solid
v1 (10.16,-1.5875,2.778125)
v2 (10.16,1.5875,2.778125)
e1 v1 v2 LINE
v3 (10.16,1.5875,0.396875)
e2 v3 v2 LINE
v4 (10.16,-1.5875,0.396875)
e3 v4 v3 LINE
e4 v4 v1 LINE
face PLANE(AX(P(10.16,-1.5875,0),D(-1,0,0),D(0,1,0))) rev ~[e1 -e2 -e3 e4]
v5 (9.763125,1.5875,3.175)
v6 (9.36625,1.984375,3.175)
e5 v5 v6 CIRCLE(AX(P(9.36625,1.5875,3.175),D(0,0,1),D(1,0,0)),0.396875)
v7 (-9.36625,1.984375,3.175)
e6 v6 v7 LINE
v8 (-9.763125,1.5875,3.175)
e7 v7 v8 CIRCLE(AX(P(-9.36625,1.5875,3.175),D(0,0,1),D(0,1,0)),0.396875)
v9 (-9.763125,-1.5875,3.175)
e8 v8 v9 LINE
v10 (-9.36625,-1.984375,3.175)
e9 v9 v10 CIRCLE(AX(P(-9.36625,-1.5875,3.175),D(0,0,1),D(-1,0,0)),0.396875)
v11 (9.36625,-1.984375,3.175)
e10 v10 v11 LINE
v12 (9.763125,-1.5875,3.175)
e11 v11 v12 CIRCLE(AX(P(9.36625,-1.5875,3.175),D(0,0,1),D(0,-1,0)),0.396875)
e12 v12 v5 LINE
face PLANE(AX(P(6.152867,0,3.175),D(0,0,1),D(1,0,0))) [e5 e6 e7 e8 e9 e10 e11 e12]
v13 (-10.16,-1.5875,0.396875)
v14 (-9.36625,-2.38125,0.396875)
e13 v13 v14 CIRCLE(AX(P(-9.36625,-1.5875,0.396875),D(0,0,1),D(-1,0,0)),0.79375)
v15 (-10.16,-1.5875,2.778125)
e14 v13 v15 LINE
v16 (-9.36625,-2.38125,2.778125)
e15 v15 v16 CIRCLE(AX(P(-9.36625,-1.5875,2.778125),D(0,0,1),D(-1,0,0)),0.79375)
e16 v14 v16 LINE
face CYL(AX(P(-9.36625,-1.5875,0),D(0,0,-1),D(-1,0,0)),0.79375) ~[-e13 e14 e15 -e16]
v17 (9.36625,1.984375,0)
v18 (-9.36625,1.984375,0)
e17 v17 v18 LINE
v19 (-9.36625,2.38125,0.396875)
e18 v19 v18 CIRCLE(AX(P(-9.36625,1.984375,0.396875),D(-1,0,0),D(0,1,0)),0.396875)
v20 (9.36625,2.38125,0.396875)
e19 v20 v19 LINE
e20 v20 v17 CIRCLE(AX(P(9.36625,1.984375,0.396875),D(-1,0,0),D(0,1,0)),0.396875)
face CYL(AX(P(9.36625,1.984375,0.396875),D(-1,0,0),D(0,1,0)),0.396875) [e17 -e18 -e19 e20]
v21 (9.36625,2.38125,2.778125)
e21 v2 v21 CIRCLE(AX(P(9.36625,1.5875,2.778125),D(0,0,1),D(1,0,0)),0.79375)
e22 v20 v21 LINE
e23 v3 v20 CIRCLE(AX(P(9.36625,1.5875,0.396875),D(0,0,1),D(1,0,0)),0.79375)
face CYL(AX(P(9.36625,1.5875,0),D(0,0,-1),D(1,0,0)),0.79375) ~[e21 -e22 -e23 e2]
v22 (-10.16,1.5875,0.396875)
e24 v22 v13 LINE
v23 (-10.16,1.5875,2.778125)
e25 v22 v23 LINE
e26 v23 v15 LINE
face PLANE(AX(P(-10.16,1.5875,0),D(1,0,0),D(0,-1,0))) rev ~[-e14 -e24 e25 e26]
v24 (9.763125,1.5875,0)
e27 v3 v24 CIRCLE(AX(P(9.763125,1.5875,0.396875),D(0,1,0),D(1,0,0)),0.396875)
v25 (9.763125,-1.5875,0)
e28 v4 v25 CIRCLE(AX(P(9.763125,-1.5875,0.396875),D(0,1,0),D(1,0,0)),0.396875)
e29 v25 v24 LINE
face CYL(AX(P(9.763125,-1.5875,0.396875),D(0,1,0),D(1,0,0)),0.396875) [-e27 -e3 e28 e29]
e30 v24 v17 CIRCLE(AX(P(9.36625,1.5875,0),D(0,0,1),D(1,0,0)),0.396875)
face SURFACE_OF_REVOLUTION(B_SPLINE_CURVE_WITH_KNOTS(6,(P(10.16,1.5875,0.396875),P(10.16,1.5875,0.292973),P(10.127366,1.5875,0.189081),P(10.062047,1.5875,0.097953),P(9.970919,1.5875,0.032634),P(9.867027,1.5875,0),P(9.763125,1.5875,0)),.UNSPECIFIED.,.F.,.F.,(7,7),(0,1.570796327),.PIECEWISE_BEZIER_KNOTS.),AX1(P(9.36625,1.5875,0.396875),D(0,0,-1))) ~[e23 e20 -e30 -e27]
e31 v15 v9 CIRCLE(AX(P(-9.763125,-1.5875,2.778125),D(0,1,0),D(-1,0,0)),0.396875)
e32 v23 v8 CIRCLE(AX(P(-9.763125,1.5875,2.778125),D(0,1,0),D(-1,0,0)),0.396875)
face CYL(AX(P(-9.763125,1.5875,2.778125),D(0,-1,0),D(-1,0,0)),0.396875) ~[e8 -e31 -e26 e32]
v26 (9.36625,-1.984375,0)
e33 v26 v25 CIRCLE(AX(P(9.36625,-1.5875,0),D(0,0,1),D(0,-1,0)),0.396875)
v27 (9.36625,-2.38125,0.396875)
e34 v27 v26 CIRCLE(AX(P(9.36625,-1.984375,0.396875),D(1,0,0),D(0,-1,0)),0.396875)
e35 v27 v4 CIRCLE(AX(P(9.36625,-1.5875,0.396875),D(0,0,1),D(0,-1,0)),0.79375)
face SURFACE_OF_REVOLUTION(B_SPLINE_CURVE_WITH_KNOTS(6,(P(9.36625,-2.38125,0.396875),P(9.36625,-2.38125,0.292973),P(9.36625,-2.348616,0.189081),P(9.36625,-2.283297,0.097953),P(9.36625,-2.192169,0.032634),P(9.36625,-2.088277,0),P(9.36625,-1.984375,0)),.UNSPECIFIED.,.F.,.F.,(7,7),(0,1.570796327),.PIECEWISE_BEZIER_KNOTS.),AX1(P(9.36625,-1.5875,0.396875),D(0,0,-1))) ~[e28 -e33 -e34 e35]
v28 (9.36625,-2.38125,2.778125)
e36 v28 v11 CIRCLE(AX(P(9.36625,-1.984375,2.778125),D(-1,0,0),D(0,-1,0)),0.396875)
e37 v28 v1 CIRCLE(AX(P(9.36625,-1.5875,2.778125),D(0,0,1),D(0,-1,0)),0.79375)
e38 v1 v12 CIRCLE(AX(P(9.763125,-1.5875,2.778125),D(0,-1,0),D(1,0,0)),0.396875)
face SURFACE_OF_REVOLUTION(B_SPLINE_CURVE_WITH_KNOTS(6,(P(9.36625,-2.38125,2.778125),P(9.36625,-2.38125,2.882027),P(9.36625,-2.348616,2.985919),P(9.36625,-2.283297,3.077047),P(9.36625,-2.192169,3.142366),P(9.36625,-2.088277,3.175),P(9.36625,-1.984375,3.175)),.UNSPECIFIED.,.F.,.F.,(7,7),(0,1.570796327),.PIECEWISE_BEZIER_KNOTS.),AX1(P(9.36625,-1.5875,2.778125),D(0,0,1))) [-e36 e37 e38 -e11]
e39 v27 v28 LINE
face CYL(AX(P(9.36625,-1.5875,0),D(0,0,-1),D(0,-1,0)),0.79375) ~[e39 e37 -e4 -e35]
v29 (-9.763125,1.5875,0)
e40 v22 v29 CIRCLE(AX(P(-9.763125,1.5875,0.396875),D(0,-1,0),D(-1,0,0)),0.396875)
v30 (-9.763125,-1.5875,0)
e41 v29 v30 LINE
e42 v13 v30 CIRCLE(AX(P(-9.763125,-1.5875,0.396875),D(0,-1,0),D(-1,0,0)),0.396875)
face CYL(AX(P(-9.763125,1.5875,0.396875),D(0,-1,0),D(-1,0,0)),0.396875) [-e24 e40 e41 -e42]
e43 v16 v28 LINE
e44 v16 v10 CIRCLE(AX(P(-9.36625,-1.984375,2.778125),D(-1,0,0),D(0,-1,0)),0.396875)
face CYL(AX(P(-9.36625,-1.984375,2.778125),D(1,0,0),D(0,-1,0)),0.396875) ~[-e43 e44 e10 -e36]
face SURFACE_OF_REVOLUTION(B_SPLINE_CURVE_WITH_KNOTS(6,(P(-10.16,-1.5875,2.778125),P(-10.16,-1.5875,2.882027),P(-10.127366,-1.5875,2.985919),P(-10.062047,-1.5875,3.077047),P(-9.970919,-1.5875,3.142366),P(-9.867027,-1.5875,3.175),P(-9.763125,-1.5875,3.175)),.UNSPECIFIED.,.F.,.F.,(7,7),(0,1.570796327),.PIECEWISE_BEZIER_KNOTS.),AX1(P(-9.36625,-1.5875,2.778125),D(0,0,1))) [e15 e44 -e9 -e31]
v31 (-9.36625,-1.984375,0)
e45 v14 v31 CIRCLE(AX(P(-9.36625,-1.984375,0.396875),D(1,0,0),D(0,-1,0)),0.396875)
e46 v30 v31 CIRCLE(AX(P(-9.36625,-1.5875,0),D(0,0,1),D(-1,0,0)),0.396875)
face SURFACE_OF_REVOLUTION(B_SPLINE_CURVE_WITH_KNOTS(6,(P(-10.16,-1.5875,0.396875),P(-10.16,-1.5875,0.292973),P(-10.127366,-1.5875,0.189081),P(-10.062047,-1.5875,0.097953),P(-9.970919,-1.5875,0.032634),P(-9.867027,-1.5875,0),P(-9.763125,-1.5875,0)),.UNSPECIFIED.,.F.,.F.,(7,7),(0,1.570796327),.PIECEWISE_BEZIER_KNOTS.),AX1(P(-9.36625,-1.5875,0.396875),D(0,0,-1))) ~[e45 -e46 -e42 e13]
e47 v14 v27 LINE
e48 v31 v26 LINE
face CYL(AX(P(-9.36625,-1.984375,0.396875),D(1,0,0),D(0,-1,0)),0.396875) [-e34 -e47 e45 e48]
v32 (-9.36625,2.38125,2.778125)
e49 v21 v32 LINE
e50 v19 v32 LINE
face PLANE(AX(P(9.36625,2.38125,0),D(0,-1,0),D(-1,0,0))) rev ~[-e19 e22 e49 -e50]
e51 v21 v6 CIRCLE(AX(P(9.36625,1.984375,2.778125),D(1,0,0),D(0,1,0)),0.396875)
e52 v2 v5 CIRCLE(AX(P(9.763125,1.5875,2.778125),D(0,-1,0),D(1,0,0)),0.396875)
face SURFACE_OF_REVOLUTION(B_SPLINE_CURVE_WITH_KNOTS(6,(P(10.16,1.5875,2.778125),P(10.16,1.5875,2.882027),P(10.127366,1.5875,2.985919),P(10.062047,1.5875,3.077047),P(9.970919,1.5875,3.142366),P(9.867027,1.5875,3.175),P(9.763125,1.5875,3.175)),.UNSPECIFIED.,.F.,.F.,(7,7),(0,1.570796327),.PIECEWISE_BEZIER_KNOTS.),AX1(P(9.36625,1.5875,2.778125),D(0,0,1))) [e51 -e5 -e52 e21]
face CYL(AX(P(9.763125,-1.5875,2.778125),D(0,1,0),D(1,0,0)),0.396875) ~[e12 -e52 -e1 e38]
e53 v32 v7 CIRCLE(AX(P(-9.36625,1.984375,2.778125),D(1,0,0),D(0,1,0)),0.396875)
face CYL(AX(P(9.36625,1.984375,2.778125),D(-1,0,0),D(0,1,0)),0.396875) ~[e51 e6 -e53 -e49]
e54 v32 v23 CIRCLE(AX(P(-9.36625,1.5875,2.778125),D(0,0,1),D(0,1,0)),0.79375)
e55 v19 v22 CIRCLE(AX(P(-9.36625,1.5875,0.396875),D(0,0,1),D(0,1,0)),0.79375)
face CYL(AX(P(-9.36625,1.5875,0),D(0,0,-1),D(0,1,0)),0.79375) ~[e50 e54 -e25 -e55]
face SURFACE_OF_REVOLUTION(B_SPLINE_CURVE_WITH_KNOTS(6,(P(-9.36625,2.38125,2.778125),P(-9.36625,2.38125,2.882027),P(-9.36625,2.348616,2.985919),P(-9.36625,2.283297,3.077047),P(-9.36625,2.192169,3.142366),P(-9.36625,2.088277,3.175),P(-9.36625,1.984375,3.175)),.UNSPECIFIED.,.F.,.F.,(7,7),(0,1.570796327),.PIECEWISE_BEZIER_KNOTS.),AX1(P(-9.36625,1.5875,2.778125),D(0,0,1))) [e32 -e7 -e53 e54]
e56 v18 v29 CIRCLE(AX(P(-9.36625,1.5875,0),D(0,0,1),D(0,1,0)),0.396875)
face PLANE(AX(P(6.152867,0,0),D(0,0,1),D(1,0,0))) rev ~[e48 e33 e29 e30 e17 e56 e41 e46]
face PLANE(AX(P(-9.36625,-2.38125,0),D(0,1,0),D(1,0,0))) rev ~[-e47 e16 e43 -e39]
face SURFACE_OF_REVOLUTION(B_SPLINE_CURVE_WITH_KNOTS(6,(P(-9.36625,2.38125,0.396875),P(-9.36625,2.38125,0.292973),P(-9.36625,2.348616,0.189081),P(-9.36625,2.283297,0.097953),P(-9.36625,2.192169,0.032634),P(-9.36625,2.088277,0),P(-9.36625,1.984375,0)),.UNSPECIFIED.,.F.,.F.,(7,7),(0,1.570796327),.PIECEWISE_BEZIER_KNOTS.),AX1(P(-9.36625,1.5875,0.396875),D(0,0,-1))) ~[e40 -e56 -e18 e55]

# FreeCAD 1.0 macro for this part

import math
import FreeCAD as App
import Part
import Sketcher

V = App.Vector
Q = App.Units.Quantity


def edges_at(feature, points):
    """Names of the edges that pass closest to the given points."""
    edges = feature.Shape.Edges
    near = lambda p: min(range(len(edges)), key=lambda i: edges[i].distToShape(Part.Vertex(*p))[0])
    return sorted({f"Edge{near(p) + 1}" for p in points})

doc = App.newDocument("Part")
body = doc.addObject("PartDesign::Body", "Body")

# Sketch on XY plane
sketch1 = doc.addObject("Sketcher::SketchObject", "Sketch")
body.addObject(sketch1)
sketch1.AttachmentSupport = (doc.XY_Plane, [""])
sketch1.MapMode = "FlatFace"
sketch1.addGeometry([
    Part.LineSegment(V(9.4, 2.4, 0), V(-9.4, 2.4, 0)),  # 0
    Part.ArcOfCircle(Part.Circle(V(-9.4, 1.6, 0), V(0, 0, 1), 0.8), math.radians(90), math.radians(180)),  # 1
    Part.LineSegment(V(-10.2, 1.6, 0), V(-10.2, -1.6, 0)),  # 2
    Part.ArcOfCircle(Part.Circle(V(-9.4, -1.6, 0), V(0, 0, 1), 0.8), math.radians(180), math.radians(270)),  # 3
    Part.LineSegment(V(-9.4, -2.4, 0), V(9.4, -2.4, 0)),  # 4
    Part.ArcOfCircle(Part.Circle(V(9.4, -1.6, 0), V(0, 0, 1), 0.8), math.radians(-90), math.radians(0)),  # 5
    Part.LineSegment(V(10.2, -1.6, 0), V(10.2, 1.6, 0)),  # 6
    Part.ArcOfCircle(Part.Circle(V(9.4, 1.6, 0), V(0, 0, 1), 0.8), math.radians(0), math.radians(90)),  # 7
], False)
sketch1.addConstraint([
    Sketcher.Constraint("Tangent", 0, 2, 1, 1),
    Sketcher.Constraint("Tangent", 1, 2, 2, 1),
    Sketcher.Constraint("Tangent", 2, 2, 3, 1),
    Sketcher.Constraint("Tangent", 3, 2, 4, 1),
    Sketcher.Constraint("Tangent", 4, 2, 5, 1),
    Sketcher.Constraint("Tangent", 5, 2, 6, 1),
    Sketcher.Constraint("Tangent", 6, 2, 7, 1),
    Sketcher.Constraint("Tangent", 7, 2, 0, 1),
    Sketcher.Constraint("Horizontal", 0),
    Sketcher.Constraint("Vertical", 2),
    Sketcher.Constraint("Horizontal", 4),
    Sketcher.Constraint("Vertical", 6),
    Sketcher.Constraint("Equal", 1, 3),
    Sketcher.Constraint("Equal", 3, 5),
    Sketcher.Constraint("Equal", 5, 7),
    Sketcher.Constraint("Symmetric", 1, 3, 5, 3, -1, 1),
    Sketcher.Constraint("Radius", 1, Q("0.03125 in")),
    Sketcher.Constraint("DistanceX", 1, 2, -1, 1, Q("0.4 in")),
    Sketcher.Constraint("DistanceY", 2, 2, 2, 1, Q("0.125 in")),
])
pad1 = doc.addObject("PartDesign::Pad", "Pad")
body.addObject(pad1)
pad1.Profile = sketch1
pad1.Length = Q("0.125 in")
doc.recompute()

fillet = doc.addObject("PartDesign::Fillet", "Fillet")
body.addObject(fillet)
fillet.Base = (pad1, edges_at(pad1, [
    (0, 2.381, 3.175),
    (-9.928, 2.149, 3.175),
    (-10.16, 0, 3.175),
    (-9.928, -2.149, 3.175),
    (0, -2.381, 3.175),
    (9.928, -2.149, 3.175),
    (10.16, 0, 3.175),
    (9.928, 2.149, 3.175),
    (0, 2.381, 0),
    (-9.928, 2.149, 0),
    (-10.16, 0, 0),
    (-9.928, -2.149, 0),
    (0, -2.381, 0),
    (9.928, -2.149, 0),
    (10.16, 0, 0),
    (9.928, 2.149, 0),
]))
fillet.Radius = Q("0.015625 in")

doc.recompute()
